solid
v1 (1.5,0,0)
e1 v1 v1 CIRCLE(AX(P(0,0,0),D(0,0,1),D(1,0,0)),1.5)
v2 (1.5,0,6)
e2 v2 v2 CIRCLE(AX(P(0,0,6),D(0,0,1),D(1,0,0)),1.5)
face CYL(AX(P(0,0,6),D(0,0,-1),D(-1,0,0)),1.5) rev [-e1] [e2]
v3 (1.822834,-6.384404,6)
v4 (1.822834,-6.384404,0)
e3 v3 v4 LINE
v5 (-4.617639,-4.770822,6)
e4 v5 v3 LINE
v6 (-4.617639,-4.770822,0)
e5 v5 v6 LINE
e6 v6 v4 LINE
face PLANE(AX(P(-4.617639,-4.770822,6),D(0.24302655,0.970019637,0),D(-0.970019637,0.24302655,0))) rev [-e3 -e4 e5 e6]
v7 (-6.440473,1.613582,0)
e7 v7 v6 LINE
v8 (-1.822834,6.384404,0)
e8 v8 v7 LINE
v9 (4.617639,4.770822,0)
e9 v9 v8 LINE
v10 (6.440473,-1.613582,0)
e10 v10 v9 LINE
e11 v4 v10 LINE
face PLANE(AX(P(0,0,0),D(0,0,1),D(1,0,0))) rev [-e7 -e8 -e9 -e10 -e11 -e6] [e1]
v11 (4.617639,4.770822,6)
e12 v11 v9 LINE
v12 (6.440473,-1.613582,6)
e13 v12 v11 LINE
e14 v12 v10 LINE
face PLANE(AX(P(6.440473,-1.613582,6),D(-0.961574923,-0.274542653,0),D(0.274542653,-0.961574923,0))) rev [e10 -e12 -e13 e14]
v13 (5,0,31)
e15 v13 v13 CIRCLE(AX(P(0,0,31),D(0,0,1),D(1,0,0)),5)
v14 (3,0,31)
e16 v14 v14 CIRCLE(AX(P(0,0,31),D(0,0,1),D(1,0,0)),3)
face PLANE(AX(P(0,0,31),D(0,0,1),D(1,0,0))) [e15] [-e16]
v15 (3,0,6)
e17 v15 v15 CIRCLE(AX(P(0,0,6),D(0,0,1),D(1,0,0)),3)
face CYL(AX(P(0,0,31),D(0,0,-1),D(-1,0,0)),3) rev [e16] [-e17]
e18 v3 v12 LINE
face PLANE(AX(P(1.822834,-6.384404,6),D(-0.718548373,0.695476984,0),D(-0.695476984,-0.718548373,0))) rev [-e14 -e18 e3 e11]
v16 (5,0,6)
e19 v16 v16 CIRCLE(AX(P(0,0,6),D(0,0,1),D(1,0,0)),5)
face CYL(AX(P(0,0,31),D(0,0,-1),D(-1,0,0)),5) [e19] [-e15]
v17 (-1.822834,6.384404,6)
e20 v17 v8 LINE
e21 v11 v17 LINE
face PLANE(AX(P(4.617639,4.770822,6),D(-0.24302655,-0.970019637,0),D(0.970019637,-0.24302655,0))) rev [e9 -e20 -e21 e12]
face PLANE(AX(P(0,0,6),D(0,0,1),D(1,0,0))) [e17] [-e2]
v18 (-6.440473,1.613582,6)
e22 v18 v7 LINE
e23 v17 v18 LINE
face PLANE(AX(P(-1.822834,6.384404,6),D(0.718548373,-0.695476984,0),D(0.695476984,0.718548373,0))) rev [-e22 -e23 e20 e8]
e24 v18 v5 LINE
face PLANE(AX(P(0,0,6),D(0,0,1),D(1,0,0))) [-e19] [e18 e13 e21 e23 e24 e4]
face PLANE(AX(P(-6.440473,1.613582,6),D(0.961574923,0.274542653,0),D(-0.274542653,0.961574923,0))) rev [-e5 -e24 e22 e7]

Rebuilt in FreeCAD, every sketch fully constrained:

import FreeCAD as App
import Part
import Sketcher
from FreeCAD import Vector

doc = App.newDocument("Part")
params = doc.addObject("Spreadsheet::Sheet", "Params")
for row, (alias, value) in enumerate([
    ("sketch1_diameter", "3 mm"),
    ("pad1_length", "6 mm"),
    ("sketch2_diameter", "10 mm"),
    ("sketch2_diameter2", "6 mm"),
    ("pad2_length", "25 mm"),
], start=1):
    params.set(f"A{row}", alias)
    params.set(f"B{row}", "=" + value)
    params.setAlias(f"B{row}", alias)

body = doc.addObject("PartDesign::Body", "Body")

sketch1 = doc.addObject("Sketcher::SketchObject", "Sketch")
body.addObject(sketch1)
sketch1.AttachmentSupport = (doc.XY_Plane, [""])
sketch1.MapMode = "FlatFace"
sketch1.addGeometry([
    Part.LineSegment(Vector(-6.4, 1.6, 0), Vector(-4.6, -4.8, 0)),
    Part.LineSegment(Vector(-4.6, -4.8, 0), Vector(1.8, -6.4, 0)),
    Part.LineSegment(Vector(1.8, -6.4, 0), Vector(6.4, -1.6, 0)),
    Part.LineSegment(Vector(6.4, -1.6, 0), Vector(4.6, 4.8, 0)),
    Part.LineSegment(Vector(4.6, 4.8, 0), Vector(-1.8, 6.4, 0)),
    Part.LineSegment(Vector(-1.8, 6.4, 0), Vector(-6.4, 1.6, 0)),
    Part.Circle(Vector(0, 0, 0), Vector(0, 0, 1), 1.5),
], False)
sketch1.addConstraint([
    Sketcher.Constraint("Coincident", 0, 2, 1, 1),
    Sketcher.Constraint("Coincident", 1, 2, 2, 1),
    Sketcher.Constraint("Coincident", 2, 2, 3, 1),
    Sketcher.Constraint("Coincident", 3, 2, 4, 1),
    Sketcher.Constraint("Coincident", 4, 2, 5, 1),
    Sketcher.Constraint("Coincident", 5, 2, 0, 1),
    Sketcher.Constraint("Coincident", 6, 3, -1, 1),
    Sketcher.Constraint("Symmetric", 0, 2, 3, 2, -1, 1),
    Sketcher.Constraint("Symmetric", 1, 2, 4, 2, -1, 1),
    Sketcher.Constraint("Symmetric", 2, 2, 5, 2, -1, 1),
    Sketcher.Constraint("Equal", 0, 1),
    Sketcher.Constraint("Equal", 1, 2),
    Sketcher.Constraint("Diameter", 6, 3.0),
    Sketcher.Constraint("Distance", 0, 6.639528),
    Sketcher.Constraint("DistanceX", 0, 2, -1, 1, 4.617639),
    Sketcher.Constraint("DistanceY", 2, 2, -1, 1, 1.613582),
    Sketcher.Constraint("DistanceY", 1, 2, 0, 2, 1.613582),
])
sketch1.setExpression("Constraints[12]", "Params.sketch1_diameter")
pad1 = doc.addObject("PartDesign::Pad", "Pad")
body.addObject(pad1)
pad1.Profile = sketch1
pad1.setExpression("Length", "Params.pad1_length")

sketch2 = doc.addObject("Sketcher::SketchObject", "Sketch001")
body.addObject(sketch2)
sketch2.AttachmentSupport = (doc.XY_Plane, [""])
sketch2.MapMode = "FlatFace"
sketch2.AttachmentOffset = App.Placement(Vector(0, 0, 6), App.Rotation())
sketch2.addGeometry([
    Part.Circle(Vector(0, 0, 0), Vector(0, 0, 1), 5),
    Part.Circle(Vector(0, 0, 0), Vector(0, 0, 1), 3),
], False)
sketch2.addConstraint([
    Sketcher.Constraint("Coincident", 0, 3, -1, 1),
    Sketcher.Constraint("Coincident", 1, 3, -1, 1),
    Sketcher.Constraint("Diameter", 0, 10.0),
    Sketcher.Constraint("Diameter", 1, 6.0),
])
sketch2.setExpression("Constraints[2]", "Params.sketch2_diameter")
sketch2.setExpression("Constraints[3]", "Params.sketch2_diameter2")
pad2 = doc.addObject("PartDesign::Pad", "Pad001")
body.addObject(pad2)
pad2.Profile = sketch2
pad2.setExpression("Length", "Params.pad2_length")

doc.recompute()
